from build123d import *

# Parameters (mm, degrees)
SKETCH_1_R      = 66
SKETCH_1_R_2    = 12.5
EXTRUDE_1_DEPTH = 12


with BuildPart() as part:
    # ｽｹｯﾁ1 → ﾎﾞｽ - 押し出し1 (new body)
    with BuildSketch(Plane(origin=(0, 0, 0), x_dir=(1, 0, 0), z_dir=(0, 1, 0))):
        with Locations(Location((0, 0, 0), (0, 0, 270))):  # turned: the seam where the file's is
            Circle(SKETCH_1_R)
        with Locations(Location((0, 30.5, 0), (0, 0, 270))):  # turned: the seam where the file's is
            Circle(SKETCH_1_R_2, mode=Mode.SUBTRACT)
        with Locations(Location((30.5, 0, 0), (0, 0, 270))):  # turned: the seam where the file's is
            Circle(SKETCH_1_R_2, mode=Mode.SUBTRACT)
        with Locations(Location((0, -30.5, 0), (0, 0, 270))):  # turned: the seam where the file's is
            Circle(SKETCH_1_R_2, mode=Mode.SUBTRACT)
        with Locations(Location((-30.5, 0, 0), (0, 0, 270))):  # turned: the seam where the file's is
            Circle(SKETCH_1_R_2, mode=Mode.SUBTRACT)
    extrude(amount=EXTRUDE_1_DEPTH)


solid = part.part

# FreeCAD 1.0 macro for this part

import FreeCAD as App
import Part
import Sketcher

V = App.Vector

doc = App.newDocument("Part")
body = doc.addObject("PartDesign::Body", "Body")

# Sketch on XZ plane
sketch1 = body.newObject("Sketcher::SketchObject", "Sketch")
sketch1.AttachmentSupport = (doc.getObject("XZ_Plane"), [""])
sketch1.MapMode = "FlatFace"
sketch1.addGeometry([
    Part.Circle(V(0, 0, 0), V(0, 0, 1), 66),  # 0
    Part.Circle(V(0, -30, 0), V(0, 0, 1), 12),  # 1
    Part.Circle(V(-30, 0, 0), V(0, 0, 1), 12),  # 2
    Part.Circle(V(0, 30, 0), V(0, 0, 1), 12),  # 3
    Part.Circle(V(30, 0, 0), V(0, 0, 1), 12),  # 4
], False)
sketch1.addConstraint([
    Sketcher.Constraint("Coincident", 0, 3, -1, 1),
    Sketcher.Constraint("Equal", 1, 2),
    Sketcher.Constraint("Equal", 2, 3),
    Sketcher.Constraint("Equal", 3, 4),
    Sketcher.Constraint("Symmetric", 1, 3, 3, 3, -1, 1),
    Sketcher.Constraint("Symmetric", 2, 3, 4, 3, -1, 1),
    Sketcher.Constraint("PointOnObject", 1, 3, -2),
    Sketcher.Constraint("PointOnObject", 2, 3, -1),
    Sketcher.Constraint("Diameter", 0, 132.0),
    Sketcher.Constraint("Diameter", 1, 25.0),
    Sketcher.Constraint("DistanceY", 1, 3, 3, 3, 61.0),
    Sketcher.Constraint("DistanceX", 2, 3, 4, 3, 61.0),
])
pad1 = body.newObject("PartDesign::Pad", "Pad")
pad1.Profile = sketch1
pad1.Length = 12
pad1.Reversed = True

doc.recompute()
